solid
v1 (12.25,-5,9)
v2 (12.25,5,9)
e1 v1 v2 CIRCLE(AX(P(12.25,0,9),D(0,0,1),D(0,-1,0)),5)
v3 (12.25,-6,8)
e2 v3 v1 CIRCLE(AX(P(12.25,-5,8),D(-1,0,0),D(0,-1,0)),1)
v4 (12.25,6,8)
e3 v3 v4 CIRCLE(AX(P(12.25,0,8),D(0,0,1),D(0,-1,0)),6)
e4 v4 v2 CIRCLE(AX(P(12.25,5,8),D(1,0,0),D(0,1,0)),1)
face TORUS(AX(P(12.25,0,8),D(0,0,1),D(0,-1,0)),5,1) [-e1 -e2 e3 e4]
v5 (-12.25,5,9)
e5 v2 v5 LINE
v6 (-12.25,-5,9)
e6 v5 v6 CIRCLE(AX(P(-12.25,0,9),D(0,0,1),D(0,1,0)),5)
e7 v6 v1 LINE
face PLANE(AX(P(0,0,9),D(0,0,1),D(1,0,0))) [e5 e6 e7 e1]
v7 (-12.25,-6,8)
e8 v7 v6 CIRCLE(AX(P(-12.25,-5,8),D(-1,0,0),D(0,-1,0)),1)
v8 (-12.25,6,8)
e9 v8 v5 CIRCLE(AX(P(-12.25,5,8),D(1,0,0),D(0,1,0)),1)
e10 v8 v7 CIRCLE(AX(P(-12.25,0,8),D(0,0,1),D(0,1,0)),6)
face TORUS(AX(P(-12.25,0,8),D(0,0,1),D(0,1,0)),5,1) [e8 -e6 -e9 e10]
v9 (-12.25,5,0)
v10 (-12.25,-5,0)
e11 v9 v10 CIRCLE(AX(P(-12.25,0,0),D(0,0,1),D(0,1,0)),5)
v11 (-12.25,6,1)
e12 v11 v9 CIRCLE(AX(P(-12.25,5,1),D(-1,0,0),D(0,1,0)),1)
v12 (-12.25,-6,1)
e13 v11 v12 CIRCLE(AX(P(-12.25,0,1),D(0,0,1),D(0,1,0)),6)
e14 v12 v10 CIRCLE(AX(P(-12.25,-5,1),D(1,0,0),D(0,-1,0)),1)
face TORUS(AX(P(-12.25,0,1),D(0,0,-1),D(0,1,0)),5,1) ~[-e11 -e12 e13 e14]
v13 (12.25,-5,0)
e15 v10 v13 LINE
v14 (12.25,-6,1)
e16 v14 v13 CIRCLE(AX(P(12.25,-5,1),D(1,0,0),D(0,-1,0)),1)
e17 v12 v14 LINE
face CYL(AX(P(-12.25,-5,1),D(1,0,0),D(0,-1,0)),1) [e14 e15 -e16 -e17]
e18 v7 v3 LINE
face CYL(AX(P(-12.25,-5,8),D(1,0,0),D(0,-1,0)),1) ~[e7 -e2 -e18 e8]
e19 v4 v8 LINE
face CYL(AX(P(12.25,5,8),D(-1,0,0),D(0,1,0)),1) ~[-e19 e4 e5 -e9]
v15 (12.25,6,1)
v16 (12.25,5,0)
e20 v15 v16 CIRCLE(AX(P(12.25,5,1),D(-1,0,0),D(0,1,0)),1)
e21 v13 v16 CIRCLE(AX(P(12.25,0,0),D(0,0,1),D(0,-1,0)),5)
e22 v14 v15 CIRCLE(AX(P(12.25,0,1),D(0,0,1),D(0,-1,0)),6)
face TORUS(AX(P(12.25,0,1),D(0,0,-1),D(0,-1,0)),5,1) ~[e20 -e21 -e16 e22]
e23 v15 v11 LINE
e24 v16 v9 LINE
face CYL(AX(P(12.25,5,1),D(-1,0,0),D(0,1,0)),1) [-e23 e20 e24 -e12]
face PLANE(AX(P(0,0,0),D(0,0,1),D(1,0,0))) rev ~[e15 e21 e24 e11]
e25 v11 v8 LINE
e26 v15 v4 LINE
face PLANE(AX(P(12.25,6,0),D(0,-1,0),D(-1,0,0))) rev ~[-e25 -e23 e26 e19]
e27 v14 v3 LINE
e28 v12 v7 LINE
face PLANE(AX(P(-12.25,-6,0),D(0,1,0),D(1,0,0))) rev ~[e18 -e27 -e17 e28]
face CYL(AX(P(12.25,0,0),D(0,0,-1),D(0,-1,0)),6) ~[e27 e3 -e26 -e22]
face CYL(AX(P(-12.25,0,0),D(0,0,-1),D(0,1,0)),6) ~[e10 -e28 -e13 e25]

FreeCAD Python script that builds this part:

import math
import FreeCAD as App
import Part
import Sketcher
from FreeCAD import Vector
Q = App.Units.Quantity


def edges_at(feature, points):
    """Names of the edges that pass closest to the given points."""
    edges = feature.Shape.Edges
    near = lambda p: min(range(len(edges)), key=lambda i: edges[i].distToShape(Part.Vertex(*p))[0])
    return sorted({f"Edge{near(p) + 1}" for p in points})

doc = App.newDocument("Part")
params = doc.addObject("Spreadsheet::Sheet", "Params")
for row, (alias, value) in enumerate([
    ("sketch1_radius", "6 mm"),
    ("sketch1_width", "24.5 mm"),
    ("pad1_length", "9 mm"),
    ("fillet_radius", "1 mm"),
], start=1):
    params.set(f"A{row}", alias)
    params.set(f"B{row}", "=" + value)
    params.setAlias(f"B{row}", alias)

body = doc.addObject("PartDesign::Body", "Body")

# Sketch on XY plane
sketch1 = body.newObject("Sketcher::SketchObject", "Sketch")
sketch1.AttachmentSupport = (doc.getObject("XY_Plane"), [""])
sketch1.MapMode = "FlatFace"
sketch1.addGeometry(Part.LineSegment(Vector(-12, -6, 0), Vector(12, -6, 0)), False)
sketch1.addGeometry(Part.ArcOfCircle(Part.Circle(Vector(12, 0, 0), Vector(0, 0, 1), 6), math.radians(-90), math.radians(90)), False)
sketch1.addGeometry(Part.LineSegment(Vector(12, 6, 0), Vector(-12, 6, 0)), False)
sketch1.addGeometry(Part.ArcOfCircle(Part.Circle(Vector(-12, 0, 0), Vector(0, 0, 1), 6), math.radians(90), math.radians(270)), False)
sketch1.addConstraint(Sketcher.Constraint("Tangent", 0, 2, 1, 1))
sketch1.addConstraint(Sketcher.Constraint("Tangent", 1, 2, 2, 1))
sketch1.addConstraint(Sketcher.Constraint("Tangent", 2, 2, 3, 1))
sketch1.addConstraint(Sketcher.Constraint("Tangent", 3, 2, 0, 1))
sketch1.addConstraint(Sketcher.Constraint("Horizontal", 0))
sketch1.addConstraint(Sketcher.Constraint("Horizontal", 2))
sketch1.addConstraint(Sketcher.Constraint("Symmetric", 1, 3, 3, 3, -1, 1))
sketch1.addConstraint(Sketcher.Constraint("Radius", 1, Q("6 mm")))
sketch1.addConstraint(Sketcher.Constraint("DistanceX", 0, 1, 0, 2, Q("24.5 mm")))
sketch1.setExpression("Constraints[7]", "Params.sketch1_radius")
sketch1.setExpression("Constraints[8]", "Params.sketch1_width")
pad1 = body.newObject("PartDesign::Pad", "Pad")
pad1.Profile = sketch1
pad1.setExpression("Length", "Params.pad1_length")
doc.recompute()

fillet = body.newObject("PartDesign::Fillet", "Fillet")
fillet.Base = (pad1, edges_at(pad1, [(0, 6, 0), (0, 6, 9)]))
fillet.setExpression("Radius", "Params.fillet_radius")

doc.recompute()
